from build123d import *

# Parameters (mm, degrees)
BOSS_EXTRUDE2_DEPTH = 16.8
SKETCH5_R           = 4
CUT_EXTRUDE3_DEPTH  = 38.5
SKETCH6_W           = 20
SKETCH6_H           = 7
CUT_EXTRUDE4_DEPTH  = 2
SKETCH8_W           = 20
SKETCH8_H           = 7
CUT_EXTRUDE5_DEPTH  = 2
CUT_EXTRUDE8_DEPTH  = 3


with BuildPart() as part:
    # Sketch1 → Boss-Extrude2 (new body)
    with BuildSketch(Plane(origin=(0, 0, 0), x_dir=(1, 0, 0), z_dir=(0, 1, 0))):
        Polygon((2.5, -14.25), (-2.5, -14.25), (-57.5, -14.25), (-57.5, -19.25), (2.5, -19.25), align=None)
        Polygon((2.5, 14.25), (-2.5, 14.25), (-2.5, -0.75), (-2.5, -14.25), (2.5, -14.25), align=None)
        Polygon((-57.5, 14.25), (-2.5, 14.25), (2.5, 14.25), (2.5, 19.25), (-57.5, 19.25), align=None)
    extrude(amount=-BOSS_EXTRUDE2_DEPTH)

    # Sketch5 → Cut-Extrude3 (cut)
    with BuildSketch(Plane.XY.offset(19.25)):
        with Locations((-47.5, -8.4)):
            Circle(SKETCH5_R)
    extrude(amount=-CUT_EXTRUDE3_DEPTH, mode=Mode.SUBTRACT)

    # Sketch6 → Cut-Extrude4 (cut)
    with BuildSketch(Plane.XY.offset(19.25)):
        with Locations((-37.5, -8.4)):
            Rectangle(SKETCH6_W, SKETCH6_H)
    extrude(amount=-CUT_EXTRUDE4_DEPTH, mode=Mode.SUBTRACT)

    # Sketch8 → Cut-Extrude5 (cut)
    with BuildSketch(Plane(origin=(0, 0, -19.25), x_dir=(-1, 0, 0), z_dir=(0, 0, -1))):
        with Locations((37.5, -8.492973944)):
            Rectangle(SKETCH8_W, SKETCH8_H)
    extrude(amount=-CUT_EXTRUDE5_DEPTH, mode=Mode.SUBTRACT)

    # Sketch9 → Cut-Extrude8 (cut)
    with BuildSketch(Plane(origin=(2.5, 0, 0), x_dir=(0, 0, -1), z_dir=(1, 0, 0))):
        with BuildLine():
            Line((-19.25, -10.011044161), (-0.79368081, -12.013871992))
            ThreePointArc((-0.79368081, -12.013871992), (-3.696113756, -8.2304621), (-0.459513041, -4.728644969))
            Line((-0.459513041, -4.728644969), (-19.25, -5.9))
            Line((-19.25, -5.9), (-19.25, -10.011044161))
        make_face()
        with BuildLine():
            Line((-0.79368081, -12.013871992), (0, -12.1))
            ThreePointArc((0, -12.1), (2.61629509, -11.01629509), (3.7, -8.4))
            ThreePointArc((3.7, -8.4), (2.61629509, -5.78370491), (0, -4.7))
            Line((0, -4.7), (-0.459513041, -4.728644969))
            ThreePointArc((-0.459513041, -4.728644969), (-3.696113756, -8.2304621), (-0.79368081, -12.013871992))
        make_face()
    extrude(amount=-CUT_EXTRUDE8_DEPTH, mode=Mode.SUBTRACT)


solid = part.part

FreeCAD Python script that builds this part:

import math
import FreeCAD as App
import Part
import Sketcher
from FreeCAD import Vector
Q = App.Units.Quantity

doc = App.newDocument("Part")
body = doc.addObject("PartDesign::Body", "Body")

# Sketch on XZ plane
sketch1 = body.newObject("Sketcher::SketchObject", "Sketch")
sketch1.AttachmentSupport = (doc.getObject("XZ_Plane"), [""])
sketch1.MapMode = "FlatFace"
sketch1.addGeometry(Part.LineSegment(Vector(-2, 14, 0), Vector(-58, 14, 0)), False)
sketch1.addGeometry(Part.LineSegment(Vector(-58, 14, 0), Vector(-58, 19, 0)), False)
sketch1.addGeometry(Part.LineSegment(Vector(-58, 19, 0), Vector(2, 19, 0)), False)
sketch1.addGeometry(Part.LineSegment(Vector(2, 19, 0), Vector(2, -19, 0)), False)
sketch1.addGeometry(Part.LineSegment(Vector(2, -19, 0), Vector(-58, -19, 0)), False)
sketch1.addGeometry(Part.LineSegment(Vector(-58, -19, 0), Vector(-58, -14, 0)), False)
sketch1.addGeometry(Part.LineSegment(Vector(-58, -14, 0), Vector(-2, -14, 0)), False)
sketch1.addGeometry(Part.LineSegment(Vector(-2, -14, 0), Vector(-2, 14, 0)), False)
sketch1.addConstraint(Sketcher.Constraint("Coincident", 0, 2, 1, 1))
sketch1.addConstraint(Sketcher.Constraint("Coincident", 1, 2, 2, 1))
sketch1.addConstraint(Sketcher.Constraint("Coincident", 2, 2, 3, 1))
sketch1.addConstraint(Sketcher.Constraint("Coincident", 3, 2, 4, 1))
sketch1.addConstraint(Sketcher.Constraint("Coincident", 4, 2, 5, 1))
sketch1.addConstraint(Sketcher.Constraint("Coincident", 5, 2, 6, 1))
sketch1.addConstraint(Sketcher.Constraint("Coincident", 6, 2, 7, 1))
sketch1.addConstraint(Sketcher.Constraint("Coincident", 7, 2, 0, 1))
sketch1.addConstraint(Sketcher.Constraint("Horizontal", 0))
sketch1.addConstraint(Sketcher.Constraint("Vertical", 1))
sketch1.addConstraint(Sketcher.Constraint("Horizontal", 2))
sketch1.addConstraint(Sketcher.Constraint("Vertical", 3))
sketch1.addConstraint(Sketcher.Constraint("Horizontal", 4))
sketch1.addConstraint(Sketcher.Constraint("Vertical", 5))
sketch1.addConstraint(Sketcher.Constraint("Horizontal", 6))
sketch1.addConstraint(Sketcher.Constraint("Vertical", 7))
sketch1.addConstraint(Sketcher.Constraint("Symmetric", 1, 2, 4, 2, -1))
sketch1.addConstraint(Sketcher.Constraint("Equal", 1, 5))
sketch1.addConstraint(Sketcher.Constraint("DistanceX", 0, 2, 0, 1, Q("55 mm")))
sketch1.addConstraint(Sketcher.Constraint("DistanceX", 2, 1, 2, 2, Q("60 mm")))
sketch1.addConstraint(Sketcher.Constraint("DistanceY", 1, 1, 1, 2, Q("5 mm")))
sketch1.addConstraint(Sketcher.Constraint("DistanceY", 3, 2, 3, 1, Q("38.5 mm")))
sketch1.addConstraint(Sketcher.Constraint("DistanceX", 0, 2, -1, 1, Q("57.5 mm")))
pad1 = body.newObject("PartDesign::Pad", "Pad")
pad1.Profile = sketch1
pad1.Length = 16.8

# Sketch on XY plane
sketch2 = body.newObject("Sketcher::SketchObject", "Sketch001")
sketch2.AttachmentSupport = (doc.getObject("XY_Plane"), [""])
sketch2.MapMode = "FlatFace"
sketch2.AttachmentOffset = App.Placement(Vector(0, 0, 19.25), App.Rotation())
sketch2.addGeometry(Part.Circle(Vector(-47.5, -8.4, 0), Vector(0, 0, 1), 4), False)
sketch2.addConstraint(Sketcher.Constraint("Diameter", 0, Q("8 mm")))
sketch2.addConstraint(Sketcher.Constraint("DistanceX", 0, 3, -1, 1, Q("47.5 mm")))
sketch2.addConstraint(Sketcher.Constraint("DistanceY", 0, 3, -1, 1, Q("8.4 mm")))
pocket1 = body.newObject("PartDesign::Pocket", "Pocket")
pocket1.Profile = sketch2
pocket1.Length = 38.5

# Sketch on XY plane
sketch3 = body.newObject("Sketcher::SketchObject", "Sketch002")
sketch3.AttachmentSupport = (doc.getObject("XY_Plane"), [""])
sketch3.MapMode = "FlatFace"
sketch3.AttachmentOffset = App.Placement(Vector(0, 0, 19.25), App.Rotation())
sketch3.addGeometry(Part.LineSegment(Vector(-48, -5, 0), Vector(-48, -12, 0)), False)
sketch3.addGeometry(Part.LineSegment(Vector(-48, -12, 0), Vector(-28, -12, 0)), False)
sketch3.addGeometry(Part.LineSegment(Vector(-28, -12, 0), Vector(-28, -5, 0)), False)
sketch3.addGeometry(Part.LineSegment(Vector(-28, -5, 0), Vector(-48, -5, 0)), False)
sketch3.addConstraint(Sketcher.Constraint("Coincident", 0, 2, 1, 1))
sketch3.addConstraint(Sketcher.Constraint("Coincident", 1, 2, 2, 1))
sketch3.addConstraint(Sketcher.Constraint("Coincident", 2, 2, 3, 1))
sketch3.addConstraint(Sketcher.Constraint("Coincident", 3, 2, 0, 1))
sketch3.addConstraint(Sketcher.Constraint("Vertical", 0))
sketch3.addConstraint(Sketcher.Constraint("Horizontal", 1))
sketch3.addConstraint(Sketcher.Constraint("Vertical", 2))
sketch3.addConstraint(Sketcher.Constraint("Horizontal", 3))
sketch3.addConstraint(Sketcher.Constraint("DistanceX", 1, 1, 1, 2, Q("20 mm")))
sketch3.addConstraint(Sketcher.Constraint("DistanceY", 0, 2, 0, 1, Q("7 mm")))
sketch3.addConstraint(Sketcher.Constraint("DistanceX", 0, 2, -1, 1, Q("47.5 mm")))
sketch3.addConstraint(Sketcher.Constraint("DistanceY", 0, 2, -1, 1, Q("11.9 mm")))
pocket2 = body.newObject("PartDesign::Pocket", "Pocket001")
pocket2.Profile = sketch3
pocket2.Length = 2

# Sketch on XY plane
sketch4 = body.newObject("Sketcher::SketchObject", "Sketch003")
sketch4.AttachmentSupport = (doc.getObject("XY_Plane"), [""])
sketch4.MapMode = "FlatFace"
sketch4.AttachmentOffset = App.Placement(Vector(0, 0, -19.25), App.Rotation())
sketch4.addGeometry(Part.LineSegment(Vector(-28, -5, 0), Vector(-28, -12, 0)), False)
sketch4.addGeometry(Part.LineSegment(Vector(-28, -12, 0), Vector(-48, -12, 0)), False)
sketch4.addGeometry(Part.LineSegment(Vector(-48, -12, 0), Vector(-48, -5, 0)), False)
sketch4.addGeometry(Part.LineSegment(Vector(-48, -5, 0), Vector(-28, -5, 0)), False)
sketch4.addConstraint(Sketcher.Constraint("Coincident", 0, 2, 1, 1))
sketch4.addConstraint(Sketcher.Constraint("Coincident", 1, 2, 2, 1))
sketch4.addConstraint(Sketcher.Constraint("Coincident", 2, 2, 3, 1))
sketch4.addConstraint(Sketcher.Constraint("Coincident", 3, 2, 0, 1))
sketch4.addConstraint(Sketcher.Constraint("Vertical", 0))
sketch4.addConstraint(Sketcher.Constraint("Horizontal", 1))
sketch4.addConstraint(Sketcher.Constraint("Vertical", 2))
sketch4.addConstraint(Sketcher.Constraint("Horizontal", 3))
sketch4.addConstraint(Sketcher.Constraint("DistanceX", 1, 2, 1, 1, Q("20 mm")))
sketch4.addConstraint(Sketcher.Constraint("DistanceY", 0, 2, 0, 1, Q("7 mm")))
sketch4.addConstraint(Sketcher.Constraint("DistanceX", 0, 2, -1, 1, Q("27.5 mm")))
sketch4.addConstraint(Sketcher.Constraint("DistanceY", 0, 2, -1, 1, Q("11.992974 mm")))
pocket3 = body.newObject("PartDesign::Pocket", "Pocket002")
pocket3.Profile = sketch4
pocket3.Length = 2
pocket3.Reversed = True

# Sketch on YZ plane
sketch5 = body.newObject("Sketcher::SketchObject", "Sketch004")
sketch5.AttachmentSupport = (doc.getObject("YZ_Plane"), [""])
sketch5.MapMode = "FlatFace"
sketch5.AttachmentOffset = App.Placement(Vector(0, 0, 2.5), App.Rotation())
sketch5.addGeometry(Part.LineSegment(Vector(-10.01, 19.25, 0), Vector(-12.01, 0.79, 0)), False)
sketch5.addGeometry(Part.LineSegment(Vector(-12.01, 0.79, 0), Vector(-12.1, 0, 0)), False)
sketch5.addGeometry(Part.ArcOfCircle(Part.Circle(Vector(-8.4, 0, 0), Vector(0, 0, 1), 3.7), math.radians(-180), math.radians(-90)), False)
sketch5.addGeometry(Part.ArcOfCircle(Part.Circle(Vector(-8.4, 0, 0), Vector(0, 0, 1), 3.7), math.radians(-90), math.radians(0)), False)
sketch5.addGeometry(Part.LineSegment(Vector(-4.7, 0, 0), Vector(-4.73, 0.46, 0)), False)
sketch5.addGeometry(Part.LineSegment(Vector(-4.73, 0.46, 0), Vector(-5.9, 19.25, 0)), False)
sketch5.addGeometry(Part.LineSegment(Vector(-5.9, 19.25, 0), Vector(-10.01, 19.25, 0)), False)
sketch5.addConstraint(Sketcher.Constraint("Coincident", 0, 2, 1, 1))
sketch5.addConstraint(Sketcher.Constraint("Coincident", 1, 2, 2, 1))
sketch5.addConstraint(Sketcher.Constraint("Tangent", 2, 2, 3, 1))
sketch5.addConstraint(Sketcher.Constraint("Coincident", 3, 2, 4, 1))
sketch5.addConstraint(Sketcher.Constraint("Coincident", 4, 2, 5, 1))
sketch5.addConstraint(Sketcher.Constraint("Coincident", 5, 2, 6, 1))
sketch5.addConstraint(Sketcher.Constraint("Coincident", 6, 2, 0, 1))
sketch5.addConstraint(Sketcher.Constraint("Horizontal", 6))
sketch5.addConstraint(Sketcher.Constraint("Equal", 2, 3))
sketch5.addConstraint(Sketcher.Constraint("PointOnObject", 2, 3, -1))
sketch5.addConstraint(Sketcher.Constraint("PointOnObject", 1, 2, -1))
sketch5.addConstraint(Sketcher.Constraint("PointOnObject", 3, 2, -1))
sketch5.addConstraint(Sketcher.Constraint("Parallel", 0, 1))
sketch5.addConstraint(Sketcher.Constraint("Parallel", 4, 5))
sketch5.addConstraint(Sketcher.Constraint("Vertical", 3, 3, 2, 2))
sketch5.addConstraint(Sketcher.Constraint("Radius", 2, Q("3.7 mm")))
sketch5.addConstraint(Sketcher.Constraint("DistanceX", 2, 3, -1, 1, Q("8.4 mm")))
sketch5.addConstraint(Sketcher.Constraint("DistanceX", 5, 2, -1, 1, Q("5.9 mm")))
sketch5.addConstraint(Sketcher.Constraint("DistanceY", -1, 1, 5, 2, Q("19.25 mm")))
sketch5.addConstraint(Sketcher.Constraint("Distance", 0, Q("18.564672 mm")))
sketch5.addConstraint(Sketcher.Constraint("Distance", 1, Q("0.79834 mm")))
sketch5.addConstraint(Sketcher.Constraint("Distance", 5, Q("18.826961 mm")))
pocket4 = body.newObject("PartDesign::Pocket", "Pocket003")
pocket4.Profile = sketch5
pocket4.Length = 3

doc.recompute()
